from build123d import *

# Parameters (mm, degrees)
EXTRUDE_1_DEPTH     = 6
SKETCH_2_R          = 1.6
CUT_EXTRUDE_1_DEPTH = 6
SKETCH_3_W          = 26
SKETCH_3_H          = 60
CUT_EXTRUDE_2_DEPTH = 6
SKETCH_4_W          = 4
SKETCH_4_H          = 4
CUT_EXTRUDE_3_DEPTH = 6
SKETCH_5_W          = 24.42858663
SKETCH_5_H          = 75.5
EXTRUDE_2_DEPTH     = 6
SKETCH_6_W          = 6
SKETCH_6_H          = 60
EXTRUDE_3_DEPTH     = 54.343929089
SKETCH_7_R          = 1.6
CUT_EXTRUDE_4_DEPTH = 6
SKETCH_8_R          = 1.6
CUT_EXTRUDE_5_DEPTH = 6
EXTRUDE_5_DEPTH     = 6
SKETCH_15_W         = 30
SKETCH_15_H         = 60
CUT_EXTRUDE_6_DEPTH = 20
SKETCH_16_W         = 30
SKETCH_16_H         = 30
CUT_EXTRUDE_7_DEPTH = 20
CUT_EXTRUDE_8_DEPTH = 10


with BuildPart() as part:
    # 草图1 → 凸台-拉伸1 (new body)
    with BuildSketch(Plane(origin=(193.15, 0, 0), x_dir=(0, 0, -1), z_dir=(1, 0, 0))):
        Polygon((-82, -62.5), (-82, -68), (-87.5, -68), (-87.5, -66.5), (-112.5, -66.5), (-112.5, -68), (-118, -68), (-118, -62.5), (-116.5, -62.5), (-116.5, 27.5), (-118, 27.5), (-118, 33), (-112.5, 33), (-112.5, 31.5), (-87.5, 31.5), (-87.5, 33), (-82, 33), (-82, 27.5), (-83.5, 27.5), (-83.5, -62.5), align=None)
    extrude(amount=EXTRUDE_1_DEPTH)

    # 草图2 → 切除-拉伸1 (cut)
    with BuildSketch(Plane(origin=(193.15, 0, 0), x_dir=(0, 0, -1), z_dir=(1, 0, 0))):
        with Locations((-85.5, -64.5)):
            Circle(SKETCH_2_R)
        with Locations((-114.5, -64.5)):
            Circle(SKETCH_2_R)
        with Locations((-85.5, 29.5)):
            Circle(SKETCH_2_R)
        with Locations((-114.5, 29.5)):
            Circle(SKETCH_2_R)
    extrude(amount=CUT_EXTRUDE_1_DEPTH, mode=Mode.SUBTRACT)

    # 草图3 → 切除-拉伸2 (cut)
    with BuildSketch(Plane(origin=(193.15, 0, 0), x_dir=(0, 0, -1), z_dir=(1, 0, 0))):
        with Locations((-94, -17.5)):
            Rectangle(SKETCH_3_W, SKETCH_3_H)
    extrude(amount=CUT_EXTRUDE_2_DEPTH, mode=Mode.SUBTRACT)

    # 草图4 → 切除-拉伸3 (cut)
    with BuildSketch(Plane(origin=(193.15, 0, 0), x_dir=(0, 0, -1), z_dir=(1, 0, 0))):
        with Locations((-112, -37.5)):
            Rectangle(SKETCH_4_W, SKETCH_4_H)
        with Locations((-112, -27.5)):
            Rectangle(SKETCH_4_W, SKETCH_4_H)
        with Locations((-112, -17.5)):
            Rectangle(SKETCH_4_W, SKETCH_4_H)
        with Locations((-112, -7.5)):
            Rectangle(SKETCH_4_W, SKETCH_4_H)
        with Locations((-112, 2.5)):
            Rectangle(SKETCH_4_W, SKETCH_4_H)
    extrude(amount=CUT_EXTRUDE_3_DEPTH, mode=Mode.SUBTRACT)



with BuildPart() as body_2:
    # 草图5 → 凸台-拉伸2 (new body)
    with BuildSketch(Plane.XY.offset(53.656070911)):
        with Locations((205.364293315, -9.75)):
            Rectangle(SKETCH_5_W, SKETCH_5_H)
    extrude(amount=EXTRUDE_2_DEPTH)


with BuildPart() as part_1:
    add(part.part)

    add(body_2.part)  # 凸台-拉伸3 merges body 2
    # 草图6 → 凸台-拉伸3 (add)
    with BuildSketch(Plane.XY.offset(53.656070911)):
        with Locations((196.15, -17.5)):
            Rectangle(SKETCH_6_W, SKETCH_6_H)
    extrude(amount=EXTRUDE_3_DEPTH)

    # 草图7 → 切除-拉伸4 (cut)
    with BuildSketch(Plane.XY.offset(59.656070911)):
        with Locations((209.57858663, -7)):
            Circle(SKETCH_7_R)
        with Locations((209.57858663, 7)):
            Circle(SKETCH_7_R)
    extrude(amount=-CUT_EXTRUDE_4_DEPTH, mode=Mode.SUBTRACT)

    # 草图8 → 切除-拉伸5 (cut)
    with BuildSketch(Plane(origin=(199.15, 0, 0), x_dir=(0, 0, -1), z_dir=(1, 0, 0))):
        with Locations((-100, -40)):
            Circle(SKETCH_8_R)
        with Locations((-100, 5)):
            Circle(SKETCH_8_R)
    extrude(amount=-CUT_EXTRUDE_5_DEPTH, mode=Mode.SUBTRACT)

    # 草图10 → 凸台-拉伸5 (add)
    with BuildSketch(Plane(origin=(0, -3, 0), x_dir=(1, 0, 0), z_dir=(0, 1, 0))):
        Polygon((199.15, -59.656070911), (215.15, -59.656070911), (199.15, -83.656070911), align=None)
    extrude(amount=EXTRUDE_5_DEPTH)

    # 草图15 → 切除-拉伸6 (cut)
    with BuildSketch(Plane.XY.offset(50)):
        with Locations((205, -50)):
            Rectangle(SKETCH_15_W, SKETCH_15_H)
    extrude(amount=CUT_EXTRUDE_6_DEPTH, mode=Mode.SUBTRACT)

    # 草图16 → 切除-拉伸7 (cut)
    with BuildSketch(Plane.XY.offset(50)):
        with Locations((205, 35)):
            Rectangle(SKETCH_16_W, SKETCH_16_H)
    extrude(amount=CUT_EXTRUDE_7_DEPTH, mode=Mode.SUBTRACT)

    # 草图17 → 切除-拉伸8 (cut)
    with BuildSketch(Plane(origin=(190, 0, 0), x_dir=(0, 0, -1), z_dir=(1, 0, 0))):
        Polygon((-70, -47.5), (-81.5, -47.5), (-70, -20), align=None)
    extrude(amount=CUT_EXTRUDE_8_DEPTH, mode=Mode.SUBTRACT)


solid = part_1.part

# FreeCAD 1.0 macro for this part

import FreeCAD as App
import Part
import Sketcher
from FreeCAD import Vector
Q = App.Units.Quantity


def add_polygon(sketch, points):
    """Adds a closed chain of lines whose ends are joined by coincident constraints."""
    first, n = sketch.GeometryCount, len(points)
    for a, b in zip(points, points[1:] + points[:1]):
        sketch.addGeometry(Part.LineSegment(App.Vector(*a, 0), App.Vector(*b, 0)), False)
    for i in range(n):
        sketch.addConstraint(Sketcher.Constraint("Coincident", first + i, 2, first + (i + 1) % n, 1))

doc = App.newDocument("Part")
body = doc.addObject("PartDesign::Body", "Body")

# Sketch on YZ plane
sketch1 = body.newObject("Sketcher::SketchObject", "Sketch")
sketch1.AttachmentSupport = (doc.getObject("YZ_Plane"), [""])
sketch1.MapMode = "FlatFace"
sketch1.AttachmentOffset = App.Placement(Vector(0, 0, 193.15), App.Rotation())
add_polygon(sketch1, [(-68, 82), (-62.5, 82), (-62.5, 83.5), (27.5, 83.5), (27.5, 82), (33, 82), (33, 87.5), (31.5, 87.5), (31.5, 112.5), (33, 112.5), (33, 118), (27.5, 118), (27.5, 116.5), (-62.5, 116.5), (-62.5, 118), (-68, 118), (-68, 112.5), (-66.5, 112.5), (-66.5, 87.5), (-68, 87.5)])  # lines 0-19
sketch1.addConstraint(Sketcher.Constraint("Horizontal", 0))
sketch1.addConstraint(Sketcher.Constraint("Vertical", 1))
sketch1.addConstraint(Sketcher.Constraint("Horizontal", 2))
sketch1.addConstraint(Sketcher.Constraint("Vertical", 3))
sketch1.addConstraint(Sketcher.Constraint("Horizontal", 4))
sketch1.addConstraint(Sketcher.Constraint("Vertical", 5))
sketch1.addConstraint(Sketcher.Constraint("Horizontal", 6))
sketch1.addConstraint(Sketcher.Constraint("Vertical", 7))
sketch1.addConstraint(Sketcher.Constraint("Horizontal", 8))
sketch1.addConstraint(Sketcher.Constraint("Vertical", 9))
sketch1.addConstraint(Sketcher.Constraint("Horizontal", 10))
sketch1.addConstraint(Sketcher.Constraint("Vertical", 11))
sketch1.addConstraint(Sketcher.Constraint("Horizontal", 12))
sketch1.addConstraint(Sketcher.Constraint("Vertical", 13))
sketch1.addConstraint(Sketcher.Constraint("Horizontal", 14))
sketch1.addConstraint(Sketcher.Constraint("Vertical", 15))
sketch1.addConstraint(Sketcher.Constraint("Horizontal", 16))
sketch1.addConstraint(Sketcher.Constraint("Vertical", 17))
sketch1.addConstraint(Sketcher.Constraint("Horizontal", 18))
sketch1.addConstraint(Sketcher.Constraint("Vertical", 19))
sketch1.addConstraint(Sketcher.Constraint("Horizontal", 0, 2, 3, 2))
sketch1.addConstraint(Sketcher.Constraint("Horizontal", 10, 2, 13, 2))
sketch1.addConstraint(Sketcher.Constraint("Horizontal", 8, 2, 15, 2))
sketch1.addConstraint(Sketcher.Constraint("Horizontal", 6, 2, 17, 2))
sketch1.addConstraint(Sketcher.Constraint("Vertical", 5, 2, 8, 2))
sketch1.addConstraint(Sketcher.Constraint("Vertical", 3, 2, 10, 2))
sketch1.addConstraint(Sketcher.Constraint("Vertical", 1, 2, 12, 2))
sketch1.addConstraint(Sketcher.Constraint("Vertical", 15, 2, 18, 2))
sketch1.addConstraint(Sketcher.Constraint("Equal", 0, 4))
sketch1.addConstraint(Sketcher.Constraint("Equal", 8, 16))
sketch1.addConstraint(Sketcher.Constraint("Equal", 18, 1))
sketch1.addConstraint(Sketcher.Constraint("Equal", 14, 5))
sketch1.addConstraint(Sketcher.Constraint("Equal", 5, 9))
sketch1.addConstraint(Sketcher.Constraint("Equal", 3, 11))
sketch1.addConstraint(Sketcher.Constraint("DistanceX", 2, 1, 2, 2, Q("90 mm")))
sketch1.addConstraint(Sketcher.Constraint("DistanceY", 7, 1, 7, 2, Q("25 mm")))
sketch1.addConstraint(Sketcher.Constraint("DistanceX", 0, 1, 0, 2, Q("5.5 mm")))
sketch1.addConstraint(Sketcher.Constraint("DistanceX", 6, 2, 6, 1, Q("1.5 mm")))
sketch1.addConstraint(Sketcher.Constraint("DistanceY", -1, 1, 0, 2, Q("82 mm")))
sketch1.addConstraint(Sketcher.Constraint("DistanceX", -1, 1, 4, 2, Q("33 mm")))
pad1 = body.newObject("PartDesign::Pad", "Pad")
pad1.Profile = sketch1
pad1.Length = 6

# Sketch on YZ plane
sketch2 = body.newObject("Sketcher::SketchObject", "Sketch001")
sketch2.AttachmentSupport = (doc.getObject("YZ_Plane"), [""])
sketch2.MapMode = "FlatFace"
sketch2.AttachmentOffset = App.Placement(Vector(0, 0, 193.15), App.Rotation())
sketch2.addGeometry(Part.Circle(Vector(-64.5, 85.5, 0), Vector(0, 0, 1), 1.6), False)
sketch2.addGeometry(Part.Circle(Vector(-64.5, 114.5, 0), Vector(0, 0, 1), 1.6), False)
sketch2.addGeometry(Part.Circle(Vector(29.5, 85.5, 0), Vector(0, 0, 1), 1.6), False)
sketch2.addGeometry(Part.Circle(Vector(29.5, 114.5, 0), Vector(0, 0, 1), 1.6), False)
sketch2.addConstraint(Sketcher.Constraint("Equal", 0, 1))
sketch2.addConstraint(Sketcher.Constraint("Equal", 1, 2))
sketch2.addConstraint(Sketcher.Constraint("Equal", 2, 3))
sketch2.addConstraint(Sketcher.Constraint("Horizontal", 0, 3, 2, 3))
sketch2.addConstraint(Sketcher.Constraint("Horizontal", 1, 3, 3, 3))
sketch2.addConstraint(Sketcher.Constraint("Vertical", 0, 3, 1, 3))
sketch2.addConstraint(Sketcher.Constraint("Vertical", 2, 3, 3, 3))
sketch2.addConstraint(Sketcher.Constraint("Diameter", 0, Q("3.2 mm")))
sketch2.addConstraint(Sketcher.Constraint("DistanceY", 0, 3, 1, 3, Q("29 mm")))
sketch2.addConstraint(Sketcher.Constraint("DistanceX", 0, 3, 2, 3, Q("94 mm")))
sketch2.addConstraint(Sketcher.Constraint("DistanceX", 0, 3, -1, 1, Q("64.5 mm")))
sketch2.addConstraint(Sketcher.Constraint("DistanceY", -1, 1, 0, 3, Q("85.5 mm")))
pocket1 = body.newObject("PartDesign::Pocket", "Pocket")
pocket1.Profile = sketch2
pocket1.Length = 6
pocket1.Reversed = True

# Sketch on YZ plane
sketch3 = body.newObject("Sketcher::SketchObject", "Sketch002")
sketch3.AttachmentSupport = (doc.getObject("YZ_Plane"), [""])
sketch3.MapMode = "FlatFace"
sketch3.AttachmentOffset = App.Placement(Vector(0, 0, 193.15), App.Rotation())
add_polygon(sketch3, [(12, 107), (-48, 107), (-48, 81), (12, 81)])  # lines 0-3
sketch3.addConstraint(Sketcher.Constraint("Horizontal", 0))
sketch3.addConstraint(Sketcher.Constraint("Vertical", 1))
sketch3.addConstraint(Sketcher.Constraint("Horizontal", 2))
sketch3.addConstraint(Sketcher.Constraint("Vertical", 3))
sketch3.addConstraint(Sketcher.Constraint("DistanceX", 0, 2, 0, 1, Q("60 mm")))
sketch3.addConstraint(Sketcher.Constraint("DistanceY", 1, 2, 1, 1, Q("26 mm")))
sketch3.addConstraint(Sketcher.Constraint("DistanceY", -1, 1, 0, 2, Q("107 mm")))
sketch3.addConstraint(Sketcher.Constraint("DistanceX", 0, 2, -1, 1, Q("47.5 mm")))
pocket2 = body.newObject("PartDesign::Pocket", "Pocket001")
pocket2.Profile = sketch3
pocket2.Length = 6
pocket2.Reversed = True

# Sketch on YZ plane
sketch4 = body.newObject("Sketcher::SketchObject", "Sketch003")
sketch4.AttachmentSupport = (doc.getObject("YZ_Plane"), [""])
sketch4.MapMode = "FlatFace"
sketch4.AttachmentOffset = App.Placement(Vector(0, 0, 193.15), App.Rotation())
add_polygon(sketch4, [(-35.5, 114), (-39.5, 114), (-39.5, 110), (-35.5, 110)])  # lines 0-3
add_polygon(sketch4, [(-25.5, 114), (-29.5, 114), (-29.5, 110), (-25.5, 110)])  # lines 4-7
add_polygon(sketch4, [(-15.5, 114), (-19.5, 114), (-19.5, 110), (-15.5, 110)])  # lines 8-11
add_polygon(sketch4, [(-5.5, 114), (-9.5, 114), (-9.5, 110), (-5.5, 110)])  # lines 12-15
add_polygon(sketch4, [(4.5, 114), (0.5, 114), (0.5, 110), (4.5, 110)])  # lines 16-19
sketch4.addConstraint(Sketcher.Constraint("Horizontal", 0))
sketch4.addConstraint(Sketcher.Constraint("Vertical", 1))
sketch4.addConstraint(Sketcher.Constraint("Horizontal", 2))
sketch4.addConstraint(Sketcher.Constraint("Vertical", 3))
sketch4.addConstraint(Sketcher.Constraint("Horizontal", 4))
sketch4.addConstraint(Sketcher.Constraint("Vertical", 5))
sketch4.addConstraint(Sketcher.Constraint("Horizontal", 6))
sketch4.addConstraint(Sketcher.Constraint("Vertical", 7))
sketch4.addConstraint(Sketcher.Constraint("Horizontal", 8))
sketch4.addConstraint(Sketcher.Constraint("Vertical", 9))
sketch4.addConstraint(Sketcher.Constraint("Horizontal", 10))
sketch4.addConstraint(Sketcher.Constraint("Vertical", 11))
sketch4.addConstraint(Sketcher.Constraint("Horizontal", 12))
sketch4.addConstraint(Sketcher.Constraint("Vertical", 13))
sketch4.addConstraint(Sketcher.Constraint("Horizontal", 14))
sketch4.addConstraint(Sketcher.Constraint("Vertical", 15))
sketch4.addConstraint(Sketcher.Constraint("Horizontal", 16))
sketch4.addConstraint(Sketcher.Constraint("Vertical", 17))
sketch4.addConstraint(Sketcher.Constraint("Horizontal", 18))
sketch4.addConstraint(Sketcher.Constraint("Vertical", 19))
sketch4.addConstraint(Sketcher.Constraint("Horizontal", 3, 2, 4, 2))
sketch4.addConstraint(Sketcher.Constraint("Horizontal", 2, 2, 5, 2))
sketch4.addConstraint(Sketcher.Constraint("Horizontal", 7, 2, 8, 2))
sketch4.addConstraint(Sketcher.Constraint("Horizontal", 6, 2, 9, 2))
sketch4.addConstraint(Sketcher.Constraint("Horizontal", 11, 2, 12, 2))
sketch4.addConstraint(Sketcher.Constraint("Horizontal", 10, 2, 13, 2))
sketch4.addConstraint(Sketcher.Constraint("Horizontal", 15, 2, 16, 2))
sketch4.addConstraint(Sketcher.Constraint("Horizontal", 14, 2, 17, 2))
sketch4.addConstraint(Sketcher.Constraint("Equal", 2, 4))
sketch4.addConstraint(Sketcher.Constraint("Equal", 6, 8))
sketch4.addConstraint(Sketcher.Constraint("Equal", 10, 12))
sketch4.addConstraint(Sketcher.Constraint("Equal", 14, 16))
sketch4.addConstraint(Sketcher.Constraint("Equal", 18, 1))
sketch4.addConstraint(Sketcher.Constraint("DistanceX", 0, 2, 0, 1, Q("4 mm")))
sketch4.addConstraint(Sketcher.Constraint("DistanceY", -1, 1, 0, 2, Q("114 mm")))
sketch4.addConstraint(Sketcher.Constraint("DistanceX", 3, 2, 4, 2, Q("6 mm")))
sketch4.addConstraint(Sketcher.Constraint("DistanceX", 7, 2, 8, 2, Q("6 mm")))
sketch4.addConstraint(Sketcher.Constraint("DistanceX", 11, 2, 12, 2, Q("6 mm")))
sketch4.addConstraint(Sketcher.Constraint("DistanceX", 15, 2, 16, 2, Q("6 mm")))
sketch4.addConstraint(Sketcher.Constraint("DistanceX", 0, 2, -1, 1, Q("39.5 mm")))
pocket3 = body.newObject("PartDesign::Pocket", "Pocket002")
pocket3.Profile = sketch4
pocket3.Length = 6
pocket3.Reversed = True
body2 = doc.addObject("PartDesign::Body", "Body001")

# Sketch on XY plane
sketch5 = body2.newObject("Sketcher::SketchObject", "Sketch004")
sketch5.AttachmentSupport = (doc.getObject("XY_Plane001"), [""])
sketch5.MapMode = "FlatFace"
sketch5.AttachmentOffset = App.Placement(Vector(0, 0, 53.656071), App.Rotation())
add_polygon(sketch5, [(193, 28), (193, -48), (218, -48), (218, 28)])  # lines 0-3
sketch5.addConstraint(Sketcher.Constraint("Vertical", 0))
sketch5.addConstraint(Sketcher.Constraint("Horizontal", 1))
sketch5.addConstraint(Sketcher.Constraint("Vertical", 2))
sketch5.addConstraint(Sketcher.Constraint("Horizontal", 3))
sketch5.addConstraint(Sketcher.Constraint("DistanceY", 0, 2, 0, 1, Q("75.5 mm")))
sketch5.addConstraint(Sketcher.Constraint("DistanceY", -1, 1, 2, 2, Q("28 mm")))
sketch5.addConstraint(Sketcher.Constraint("DistanceX", -1, 1, 0, 2, Q("193.15 mm")))
sketch5.addConstraint(Sketcher.Constraint("DistanceX", 1, 1, 1, 2, Q("24.428587 mm")))
pad2 = body2.newObject("PartDesign::Pad", "Pad001")
pad2.Profile = sketch5
pad2.Length = 6
body.AllowCompound = True
doc.recompute()

boolean = body.newObject("PartDesign::Boolean", "Boolean")
boolean.Type = "Fuse"
boolean.addObjects([body2])

# Sketch on XY plane
sketch6 = body.newObject("Sketcher::SketchObject", "Sketch005")
sketch6.AttachmentSupport = (doc.getObject("XY_Plane"), [""])
sketch6.MapMode = "FlatFace"
sketch6.AttachmentOffset = App.Placement(Vector(0, 0, 53.656071), App.Rotation())
add_polygon(sketch6, [(193, 12), (193, -48), (199, -48), (199, 12)])  # lines 0-3
sketch6.addConstraint(Sketcher.Constraint("Vertical", 0))
sketch6.addConstraint(Sketcher.Constraint("Horizontal", 1))
sketch6.addConstraint(Sketcher.Constraint("Vertical", 2))
sketch6.addConstraint(Sketcher.Constraint("Horizontal", 3))
sketch6.addConstraint(Sketcher.Constraint("DistanceX", 1, 1, 1, 2, Q("6 mm")))
sketch6.addConstraint(Sketcher.Constraint("DistanceY", 0, 2, 0, 1, Q("60 mm")))
sketch6.addConstraint(Sketcher.Constraint("DistanceY", 0, 2, -1, 1, Q("47.5 mm")))
sketch6.addConstraint(Sketcher.Constraint("DistanceX", -1, 1, 0, 2, Q("193.15 mm")))
pad3 = body.newObject("PartDesign::Pad", "Pad002")
pad3.Profile = sketch6
pad3.Length = 54.343929

# Sketch on XY plane
sketch7 = body.newObject("Sketcher::SketchObject", "Sketch006")
sketch7.AttachmentSupport = (doc.getObject("XY_Plane"), [""])
sketch7.MapMode = "FlatFace"
sketch7.AttachmentOffset = App.Placement(Vector(0, 0, 59.656071), App.Rotation())
sketch7.addGeometry(Part.Circle(Vector(209.6, -7, 0), Vector(0, 0, 1), 1.6), False)
sketch7.addGeometry(Part.Circle(Vector(209.6, 7, 0), Vector(0, 0, 1), 1.6), False)
sketch7.addConstraint(Sketcher.Constraint("Equal", 0, 1))
sketch7.addConstraint(Sketcher.Constraint("Symmetric", 0, 3, 1, 3, -1))
sketch7.addConstraint(Sketcher.Constraint("Diameter", 0, Q("3.2 mm")))
sketch7.addConstraint(Sketcher.Constraint("DistanceY", 0, 3, -1, 1, Q("7 mm")))
sketch7.addConstraint(Sketcher.Constraint("DistanceX", -1, 1, 0, 3, Q("209.578587 mm")))
pocket4 = body.newObject("PartDesign::Pocket", "Pocket003")
pocket4.Profile = sketch7
pocket4.Length = 6

# Sketch on YZ plane
sketch8 = body.newObject("Sketcher::SketchObject", "Sketch007")
sketch8.AttachmentSupport = (doc.getObject("YZ_Plane"), [""])
sketch8.MapMode = "FlatFace"
sketch8.AttachmentOffset = App.Placement(Vector(0, 0, 199.15), App.Rotation())
sketch8.addGeometry(Part.Circle(Vector(-40, 100, 0), Vector(0, 0, 1), 1.6), False)
sketch8.addGeometry(Part.Circle(Vector(5, 100, 0), Vector(0, 0, 1), 1.6), False)
sketch8.addConstraint(Sketcher.Constraint("Equal", 0, 1))
sketch8.addConstraint(Sketcher.Constraint("Horizontal", 0, 3, 1, 3))
sketch8.addConstraint(Sketcher.Constraint("Diameter", 0, Q("3.2 mm")))
sketch8.addConstraint(Sketcher.Constraint("DistanceX", 0, 3, -1, 1, Q("40 mm")))
sketch8.addConstraint(Sketcher.Constraint("DistanceY", -1, 1, 0, 3, Q("100 mm")))
sketch8.addConstraint(Sketcher.Constraint("DistanceX", -1, 1, 1, 3, Q("5 mm")))
pocket5 = body.newObject("PartDesign::Pocket", "Pocket004")
pocket5.Profile = sketch8
pocket5.Length = 6

# Sketch on XZ plane
sketch9 = body.newObject("Sketcher::SketchObject", "Sketch008")
sketch9.AttachmentSupport = (doc.getObject("XZ_Plane"), [""])
sketch9.MapMode = "FlatFace"
sketch9.AttachmentOffset = App.Placement(Vector(0, 0, 3), App.Rotation())
add_polygon(sketch9, [(215, 60), (199, 60), (199, 84)])  # lines 0-2
sketch9.addConstraint(Sketcher.Constraint("Horizontal", 0))
sketch9.addConstraint(Sketcher.Constraint("Vertical", 1))
sketch9.addConstraint(Sketcher.Constraint("DistanceX", 0, 2, 0, 1, Q("16 mm")))
sketch9.addConstraint(Sketcher.Constraint("DistanceY", 1, 1, 1, 2, Q("24 mm")))
sketch9.addConstraint(Sketcher.Constraint("DistanceX", -1, 1, 0, 2, Q("199.15 mm")))
sketch9.addConstraint(Sketcher.Constraint("DistanceY", -1, 1, 0, 2, Q("59.656071 mm")))
pad4 = body.newObject("PartDesign::Pad", "Pad003")
pad4.Profile = sketch9
pad4.Length = 6
pad4.Reversed = True

# Sketch on XY plane
sketch10 = body.newObject("Sketcher::SketchObject", "Sketch009")
sketch10.AttachmentSupport = (doc.getObject("XY_Plane"), [""])
sketch10.MapMode = "FlatFace"
sketch10.AttachmentOffset = App.Placement(Vector(0, 0, 50), App.Rotation())
add_polygon(sketch10, [(190, -20), (190, -80), (220, -80), (220, -20)])  # lines 0-3
sketch10.addConstraint(Sketcher.Constraint("Vertical", 0))
sketch10.addConstraint(Sketcher.Constraint("Horizontal", 1))
sketch10.addConstraint(Sketcher.Constraint("Vertical", 2))
sketch10.addConstraint(Sketcher.Constraint("Horizontal", 3))
sketch10.addConstraint(Sketcher.Constraint("DistanceX", 1, 1, 1, 2, Q("30 mm")))
sketch10.addConstraint(Sketcher.Constraint("DistanceY", 0, 2, 0, 1, Q("60 mm")))
sketch10.addConstraint(Sketcher.Constraint("DistanceX", -1, 1, 0, 2, Q("190 mm")))
sketch10.addConstraint(Sketcher.Constraint("DistanceY", 0, 2, -1, 1, Q("80 mm")))
pocket6 = body.newObject("PartDesign::Pocket", "Pocket005")
pocket6.Profile = sketch10
pocket6.Length = 20
pocket6.Reversed = True

# Sketch on XY plane
sketch11 = body.newObject("Sketcher::SketchObject", "Sketch010")
sketch11.AttachmentSupport = (doc.getObject("XY_Plane"), [""])
sketch11.MapMode = "FlatFace"
sketch11.AttachmentOffset = App.Placement(Vector(0, 0, 50), App.Rotation())
add_polygon(sketch11, [(190, 50), (190, 20), (220, 20), (220, 50)])  # lines 0-3
sketch11.addConstraint(Sketcher.Constraint("Vertical", 0))
sketch11.addConstraint(Sketcher.Constraint("Horizontal", 1))
sketch11.addConstraint(Sketcher.Constraint("Vertical", 2))
sketch11.addConstraint(Sketcher.Constraint("Horizontal", 3))
sketch11.addConstraint(Sketcher.Constraint("Equal", 3, 0))
sketch11.addConstraint(Sketcher.Constraint("DistanceX", 1, 1, 1, 2, Q("30 mm")))
sketch11.addConstraint(Sketcher.Constraint("DistanceX", -1, 1, 0, 2, Q("190 mm")))
sketch11.addConstraint(Sketcher.Constraint("DistanceY", -1, 1, 0, 2, Q("20 mm")))
pocket7 = body.newObject("PartDesign::Pocket", "Pocket006")
pocket7.Profile = sketch11
pocket7.Length = 20
pocket7.Reversed = True

# Sketch on YZ plane
sketch12 = body.newObject("Sketcher::SketchObject", "Sketch011")
sketch12.AttachmentSupport = (doc.getObject("YZ_Plane"), [""])
sketch12.MapMode = "FlatFace"
sketch12.AttachmentOffset = App.Placement(Vector(0, 0, 190), App.Rotation())
add_polygon(sketch12, [(-48, 82), (-48, 70), (-20, 70)])  # lines 0-2
sketch12.addConstraint(Sketcher.Constraint("Vertical", 0))
sketch12.addConstraint(Sketcher.Constraint("Horizontal", 1))
sketch12.addConstraint(Sketcher.Constraint("DistanceX", 1, 1, 1, 2, Q("27.5 mm")))
sketch12.addConstraint(Sketcher.Constraint("DistanceY", 0, 2, 0, 1, Q("11.5 mm")))
sketch12.addConstraint(Sketcher.Constraint("DistanceY", -1, 1, 0, 2, Q("70 mm")))
sketch12.addConstraint(Sketcher.Constraint("DistanceX", 1, 2, -1, 1, Q("20 mm")))
pocket8 = body.newObject("PartDesign::Pocket", "Pocket007")
pocket8.Profile = sketch12
pocket8.Length = 10
pocket8.Reversed = True

doc.recompute()
